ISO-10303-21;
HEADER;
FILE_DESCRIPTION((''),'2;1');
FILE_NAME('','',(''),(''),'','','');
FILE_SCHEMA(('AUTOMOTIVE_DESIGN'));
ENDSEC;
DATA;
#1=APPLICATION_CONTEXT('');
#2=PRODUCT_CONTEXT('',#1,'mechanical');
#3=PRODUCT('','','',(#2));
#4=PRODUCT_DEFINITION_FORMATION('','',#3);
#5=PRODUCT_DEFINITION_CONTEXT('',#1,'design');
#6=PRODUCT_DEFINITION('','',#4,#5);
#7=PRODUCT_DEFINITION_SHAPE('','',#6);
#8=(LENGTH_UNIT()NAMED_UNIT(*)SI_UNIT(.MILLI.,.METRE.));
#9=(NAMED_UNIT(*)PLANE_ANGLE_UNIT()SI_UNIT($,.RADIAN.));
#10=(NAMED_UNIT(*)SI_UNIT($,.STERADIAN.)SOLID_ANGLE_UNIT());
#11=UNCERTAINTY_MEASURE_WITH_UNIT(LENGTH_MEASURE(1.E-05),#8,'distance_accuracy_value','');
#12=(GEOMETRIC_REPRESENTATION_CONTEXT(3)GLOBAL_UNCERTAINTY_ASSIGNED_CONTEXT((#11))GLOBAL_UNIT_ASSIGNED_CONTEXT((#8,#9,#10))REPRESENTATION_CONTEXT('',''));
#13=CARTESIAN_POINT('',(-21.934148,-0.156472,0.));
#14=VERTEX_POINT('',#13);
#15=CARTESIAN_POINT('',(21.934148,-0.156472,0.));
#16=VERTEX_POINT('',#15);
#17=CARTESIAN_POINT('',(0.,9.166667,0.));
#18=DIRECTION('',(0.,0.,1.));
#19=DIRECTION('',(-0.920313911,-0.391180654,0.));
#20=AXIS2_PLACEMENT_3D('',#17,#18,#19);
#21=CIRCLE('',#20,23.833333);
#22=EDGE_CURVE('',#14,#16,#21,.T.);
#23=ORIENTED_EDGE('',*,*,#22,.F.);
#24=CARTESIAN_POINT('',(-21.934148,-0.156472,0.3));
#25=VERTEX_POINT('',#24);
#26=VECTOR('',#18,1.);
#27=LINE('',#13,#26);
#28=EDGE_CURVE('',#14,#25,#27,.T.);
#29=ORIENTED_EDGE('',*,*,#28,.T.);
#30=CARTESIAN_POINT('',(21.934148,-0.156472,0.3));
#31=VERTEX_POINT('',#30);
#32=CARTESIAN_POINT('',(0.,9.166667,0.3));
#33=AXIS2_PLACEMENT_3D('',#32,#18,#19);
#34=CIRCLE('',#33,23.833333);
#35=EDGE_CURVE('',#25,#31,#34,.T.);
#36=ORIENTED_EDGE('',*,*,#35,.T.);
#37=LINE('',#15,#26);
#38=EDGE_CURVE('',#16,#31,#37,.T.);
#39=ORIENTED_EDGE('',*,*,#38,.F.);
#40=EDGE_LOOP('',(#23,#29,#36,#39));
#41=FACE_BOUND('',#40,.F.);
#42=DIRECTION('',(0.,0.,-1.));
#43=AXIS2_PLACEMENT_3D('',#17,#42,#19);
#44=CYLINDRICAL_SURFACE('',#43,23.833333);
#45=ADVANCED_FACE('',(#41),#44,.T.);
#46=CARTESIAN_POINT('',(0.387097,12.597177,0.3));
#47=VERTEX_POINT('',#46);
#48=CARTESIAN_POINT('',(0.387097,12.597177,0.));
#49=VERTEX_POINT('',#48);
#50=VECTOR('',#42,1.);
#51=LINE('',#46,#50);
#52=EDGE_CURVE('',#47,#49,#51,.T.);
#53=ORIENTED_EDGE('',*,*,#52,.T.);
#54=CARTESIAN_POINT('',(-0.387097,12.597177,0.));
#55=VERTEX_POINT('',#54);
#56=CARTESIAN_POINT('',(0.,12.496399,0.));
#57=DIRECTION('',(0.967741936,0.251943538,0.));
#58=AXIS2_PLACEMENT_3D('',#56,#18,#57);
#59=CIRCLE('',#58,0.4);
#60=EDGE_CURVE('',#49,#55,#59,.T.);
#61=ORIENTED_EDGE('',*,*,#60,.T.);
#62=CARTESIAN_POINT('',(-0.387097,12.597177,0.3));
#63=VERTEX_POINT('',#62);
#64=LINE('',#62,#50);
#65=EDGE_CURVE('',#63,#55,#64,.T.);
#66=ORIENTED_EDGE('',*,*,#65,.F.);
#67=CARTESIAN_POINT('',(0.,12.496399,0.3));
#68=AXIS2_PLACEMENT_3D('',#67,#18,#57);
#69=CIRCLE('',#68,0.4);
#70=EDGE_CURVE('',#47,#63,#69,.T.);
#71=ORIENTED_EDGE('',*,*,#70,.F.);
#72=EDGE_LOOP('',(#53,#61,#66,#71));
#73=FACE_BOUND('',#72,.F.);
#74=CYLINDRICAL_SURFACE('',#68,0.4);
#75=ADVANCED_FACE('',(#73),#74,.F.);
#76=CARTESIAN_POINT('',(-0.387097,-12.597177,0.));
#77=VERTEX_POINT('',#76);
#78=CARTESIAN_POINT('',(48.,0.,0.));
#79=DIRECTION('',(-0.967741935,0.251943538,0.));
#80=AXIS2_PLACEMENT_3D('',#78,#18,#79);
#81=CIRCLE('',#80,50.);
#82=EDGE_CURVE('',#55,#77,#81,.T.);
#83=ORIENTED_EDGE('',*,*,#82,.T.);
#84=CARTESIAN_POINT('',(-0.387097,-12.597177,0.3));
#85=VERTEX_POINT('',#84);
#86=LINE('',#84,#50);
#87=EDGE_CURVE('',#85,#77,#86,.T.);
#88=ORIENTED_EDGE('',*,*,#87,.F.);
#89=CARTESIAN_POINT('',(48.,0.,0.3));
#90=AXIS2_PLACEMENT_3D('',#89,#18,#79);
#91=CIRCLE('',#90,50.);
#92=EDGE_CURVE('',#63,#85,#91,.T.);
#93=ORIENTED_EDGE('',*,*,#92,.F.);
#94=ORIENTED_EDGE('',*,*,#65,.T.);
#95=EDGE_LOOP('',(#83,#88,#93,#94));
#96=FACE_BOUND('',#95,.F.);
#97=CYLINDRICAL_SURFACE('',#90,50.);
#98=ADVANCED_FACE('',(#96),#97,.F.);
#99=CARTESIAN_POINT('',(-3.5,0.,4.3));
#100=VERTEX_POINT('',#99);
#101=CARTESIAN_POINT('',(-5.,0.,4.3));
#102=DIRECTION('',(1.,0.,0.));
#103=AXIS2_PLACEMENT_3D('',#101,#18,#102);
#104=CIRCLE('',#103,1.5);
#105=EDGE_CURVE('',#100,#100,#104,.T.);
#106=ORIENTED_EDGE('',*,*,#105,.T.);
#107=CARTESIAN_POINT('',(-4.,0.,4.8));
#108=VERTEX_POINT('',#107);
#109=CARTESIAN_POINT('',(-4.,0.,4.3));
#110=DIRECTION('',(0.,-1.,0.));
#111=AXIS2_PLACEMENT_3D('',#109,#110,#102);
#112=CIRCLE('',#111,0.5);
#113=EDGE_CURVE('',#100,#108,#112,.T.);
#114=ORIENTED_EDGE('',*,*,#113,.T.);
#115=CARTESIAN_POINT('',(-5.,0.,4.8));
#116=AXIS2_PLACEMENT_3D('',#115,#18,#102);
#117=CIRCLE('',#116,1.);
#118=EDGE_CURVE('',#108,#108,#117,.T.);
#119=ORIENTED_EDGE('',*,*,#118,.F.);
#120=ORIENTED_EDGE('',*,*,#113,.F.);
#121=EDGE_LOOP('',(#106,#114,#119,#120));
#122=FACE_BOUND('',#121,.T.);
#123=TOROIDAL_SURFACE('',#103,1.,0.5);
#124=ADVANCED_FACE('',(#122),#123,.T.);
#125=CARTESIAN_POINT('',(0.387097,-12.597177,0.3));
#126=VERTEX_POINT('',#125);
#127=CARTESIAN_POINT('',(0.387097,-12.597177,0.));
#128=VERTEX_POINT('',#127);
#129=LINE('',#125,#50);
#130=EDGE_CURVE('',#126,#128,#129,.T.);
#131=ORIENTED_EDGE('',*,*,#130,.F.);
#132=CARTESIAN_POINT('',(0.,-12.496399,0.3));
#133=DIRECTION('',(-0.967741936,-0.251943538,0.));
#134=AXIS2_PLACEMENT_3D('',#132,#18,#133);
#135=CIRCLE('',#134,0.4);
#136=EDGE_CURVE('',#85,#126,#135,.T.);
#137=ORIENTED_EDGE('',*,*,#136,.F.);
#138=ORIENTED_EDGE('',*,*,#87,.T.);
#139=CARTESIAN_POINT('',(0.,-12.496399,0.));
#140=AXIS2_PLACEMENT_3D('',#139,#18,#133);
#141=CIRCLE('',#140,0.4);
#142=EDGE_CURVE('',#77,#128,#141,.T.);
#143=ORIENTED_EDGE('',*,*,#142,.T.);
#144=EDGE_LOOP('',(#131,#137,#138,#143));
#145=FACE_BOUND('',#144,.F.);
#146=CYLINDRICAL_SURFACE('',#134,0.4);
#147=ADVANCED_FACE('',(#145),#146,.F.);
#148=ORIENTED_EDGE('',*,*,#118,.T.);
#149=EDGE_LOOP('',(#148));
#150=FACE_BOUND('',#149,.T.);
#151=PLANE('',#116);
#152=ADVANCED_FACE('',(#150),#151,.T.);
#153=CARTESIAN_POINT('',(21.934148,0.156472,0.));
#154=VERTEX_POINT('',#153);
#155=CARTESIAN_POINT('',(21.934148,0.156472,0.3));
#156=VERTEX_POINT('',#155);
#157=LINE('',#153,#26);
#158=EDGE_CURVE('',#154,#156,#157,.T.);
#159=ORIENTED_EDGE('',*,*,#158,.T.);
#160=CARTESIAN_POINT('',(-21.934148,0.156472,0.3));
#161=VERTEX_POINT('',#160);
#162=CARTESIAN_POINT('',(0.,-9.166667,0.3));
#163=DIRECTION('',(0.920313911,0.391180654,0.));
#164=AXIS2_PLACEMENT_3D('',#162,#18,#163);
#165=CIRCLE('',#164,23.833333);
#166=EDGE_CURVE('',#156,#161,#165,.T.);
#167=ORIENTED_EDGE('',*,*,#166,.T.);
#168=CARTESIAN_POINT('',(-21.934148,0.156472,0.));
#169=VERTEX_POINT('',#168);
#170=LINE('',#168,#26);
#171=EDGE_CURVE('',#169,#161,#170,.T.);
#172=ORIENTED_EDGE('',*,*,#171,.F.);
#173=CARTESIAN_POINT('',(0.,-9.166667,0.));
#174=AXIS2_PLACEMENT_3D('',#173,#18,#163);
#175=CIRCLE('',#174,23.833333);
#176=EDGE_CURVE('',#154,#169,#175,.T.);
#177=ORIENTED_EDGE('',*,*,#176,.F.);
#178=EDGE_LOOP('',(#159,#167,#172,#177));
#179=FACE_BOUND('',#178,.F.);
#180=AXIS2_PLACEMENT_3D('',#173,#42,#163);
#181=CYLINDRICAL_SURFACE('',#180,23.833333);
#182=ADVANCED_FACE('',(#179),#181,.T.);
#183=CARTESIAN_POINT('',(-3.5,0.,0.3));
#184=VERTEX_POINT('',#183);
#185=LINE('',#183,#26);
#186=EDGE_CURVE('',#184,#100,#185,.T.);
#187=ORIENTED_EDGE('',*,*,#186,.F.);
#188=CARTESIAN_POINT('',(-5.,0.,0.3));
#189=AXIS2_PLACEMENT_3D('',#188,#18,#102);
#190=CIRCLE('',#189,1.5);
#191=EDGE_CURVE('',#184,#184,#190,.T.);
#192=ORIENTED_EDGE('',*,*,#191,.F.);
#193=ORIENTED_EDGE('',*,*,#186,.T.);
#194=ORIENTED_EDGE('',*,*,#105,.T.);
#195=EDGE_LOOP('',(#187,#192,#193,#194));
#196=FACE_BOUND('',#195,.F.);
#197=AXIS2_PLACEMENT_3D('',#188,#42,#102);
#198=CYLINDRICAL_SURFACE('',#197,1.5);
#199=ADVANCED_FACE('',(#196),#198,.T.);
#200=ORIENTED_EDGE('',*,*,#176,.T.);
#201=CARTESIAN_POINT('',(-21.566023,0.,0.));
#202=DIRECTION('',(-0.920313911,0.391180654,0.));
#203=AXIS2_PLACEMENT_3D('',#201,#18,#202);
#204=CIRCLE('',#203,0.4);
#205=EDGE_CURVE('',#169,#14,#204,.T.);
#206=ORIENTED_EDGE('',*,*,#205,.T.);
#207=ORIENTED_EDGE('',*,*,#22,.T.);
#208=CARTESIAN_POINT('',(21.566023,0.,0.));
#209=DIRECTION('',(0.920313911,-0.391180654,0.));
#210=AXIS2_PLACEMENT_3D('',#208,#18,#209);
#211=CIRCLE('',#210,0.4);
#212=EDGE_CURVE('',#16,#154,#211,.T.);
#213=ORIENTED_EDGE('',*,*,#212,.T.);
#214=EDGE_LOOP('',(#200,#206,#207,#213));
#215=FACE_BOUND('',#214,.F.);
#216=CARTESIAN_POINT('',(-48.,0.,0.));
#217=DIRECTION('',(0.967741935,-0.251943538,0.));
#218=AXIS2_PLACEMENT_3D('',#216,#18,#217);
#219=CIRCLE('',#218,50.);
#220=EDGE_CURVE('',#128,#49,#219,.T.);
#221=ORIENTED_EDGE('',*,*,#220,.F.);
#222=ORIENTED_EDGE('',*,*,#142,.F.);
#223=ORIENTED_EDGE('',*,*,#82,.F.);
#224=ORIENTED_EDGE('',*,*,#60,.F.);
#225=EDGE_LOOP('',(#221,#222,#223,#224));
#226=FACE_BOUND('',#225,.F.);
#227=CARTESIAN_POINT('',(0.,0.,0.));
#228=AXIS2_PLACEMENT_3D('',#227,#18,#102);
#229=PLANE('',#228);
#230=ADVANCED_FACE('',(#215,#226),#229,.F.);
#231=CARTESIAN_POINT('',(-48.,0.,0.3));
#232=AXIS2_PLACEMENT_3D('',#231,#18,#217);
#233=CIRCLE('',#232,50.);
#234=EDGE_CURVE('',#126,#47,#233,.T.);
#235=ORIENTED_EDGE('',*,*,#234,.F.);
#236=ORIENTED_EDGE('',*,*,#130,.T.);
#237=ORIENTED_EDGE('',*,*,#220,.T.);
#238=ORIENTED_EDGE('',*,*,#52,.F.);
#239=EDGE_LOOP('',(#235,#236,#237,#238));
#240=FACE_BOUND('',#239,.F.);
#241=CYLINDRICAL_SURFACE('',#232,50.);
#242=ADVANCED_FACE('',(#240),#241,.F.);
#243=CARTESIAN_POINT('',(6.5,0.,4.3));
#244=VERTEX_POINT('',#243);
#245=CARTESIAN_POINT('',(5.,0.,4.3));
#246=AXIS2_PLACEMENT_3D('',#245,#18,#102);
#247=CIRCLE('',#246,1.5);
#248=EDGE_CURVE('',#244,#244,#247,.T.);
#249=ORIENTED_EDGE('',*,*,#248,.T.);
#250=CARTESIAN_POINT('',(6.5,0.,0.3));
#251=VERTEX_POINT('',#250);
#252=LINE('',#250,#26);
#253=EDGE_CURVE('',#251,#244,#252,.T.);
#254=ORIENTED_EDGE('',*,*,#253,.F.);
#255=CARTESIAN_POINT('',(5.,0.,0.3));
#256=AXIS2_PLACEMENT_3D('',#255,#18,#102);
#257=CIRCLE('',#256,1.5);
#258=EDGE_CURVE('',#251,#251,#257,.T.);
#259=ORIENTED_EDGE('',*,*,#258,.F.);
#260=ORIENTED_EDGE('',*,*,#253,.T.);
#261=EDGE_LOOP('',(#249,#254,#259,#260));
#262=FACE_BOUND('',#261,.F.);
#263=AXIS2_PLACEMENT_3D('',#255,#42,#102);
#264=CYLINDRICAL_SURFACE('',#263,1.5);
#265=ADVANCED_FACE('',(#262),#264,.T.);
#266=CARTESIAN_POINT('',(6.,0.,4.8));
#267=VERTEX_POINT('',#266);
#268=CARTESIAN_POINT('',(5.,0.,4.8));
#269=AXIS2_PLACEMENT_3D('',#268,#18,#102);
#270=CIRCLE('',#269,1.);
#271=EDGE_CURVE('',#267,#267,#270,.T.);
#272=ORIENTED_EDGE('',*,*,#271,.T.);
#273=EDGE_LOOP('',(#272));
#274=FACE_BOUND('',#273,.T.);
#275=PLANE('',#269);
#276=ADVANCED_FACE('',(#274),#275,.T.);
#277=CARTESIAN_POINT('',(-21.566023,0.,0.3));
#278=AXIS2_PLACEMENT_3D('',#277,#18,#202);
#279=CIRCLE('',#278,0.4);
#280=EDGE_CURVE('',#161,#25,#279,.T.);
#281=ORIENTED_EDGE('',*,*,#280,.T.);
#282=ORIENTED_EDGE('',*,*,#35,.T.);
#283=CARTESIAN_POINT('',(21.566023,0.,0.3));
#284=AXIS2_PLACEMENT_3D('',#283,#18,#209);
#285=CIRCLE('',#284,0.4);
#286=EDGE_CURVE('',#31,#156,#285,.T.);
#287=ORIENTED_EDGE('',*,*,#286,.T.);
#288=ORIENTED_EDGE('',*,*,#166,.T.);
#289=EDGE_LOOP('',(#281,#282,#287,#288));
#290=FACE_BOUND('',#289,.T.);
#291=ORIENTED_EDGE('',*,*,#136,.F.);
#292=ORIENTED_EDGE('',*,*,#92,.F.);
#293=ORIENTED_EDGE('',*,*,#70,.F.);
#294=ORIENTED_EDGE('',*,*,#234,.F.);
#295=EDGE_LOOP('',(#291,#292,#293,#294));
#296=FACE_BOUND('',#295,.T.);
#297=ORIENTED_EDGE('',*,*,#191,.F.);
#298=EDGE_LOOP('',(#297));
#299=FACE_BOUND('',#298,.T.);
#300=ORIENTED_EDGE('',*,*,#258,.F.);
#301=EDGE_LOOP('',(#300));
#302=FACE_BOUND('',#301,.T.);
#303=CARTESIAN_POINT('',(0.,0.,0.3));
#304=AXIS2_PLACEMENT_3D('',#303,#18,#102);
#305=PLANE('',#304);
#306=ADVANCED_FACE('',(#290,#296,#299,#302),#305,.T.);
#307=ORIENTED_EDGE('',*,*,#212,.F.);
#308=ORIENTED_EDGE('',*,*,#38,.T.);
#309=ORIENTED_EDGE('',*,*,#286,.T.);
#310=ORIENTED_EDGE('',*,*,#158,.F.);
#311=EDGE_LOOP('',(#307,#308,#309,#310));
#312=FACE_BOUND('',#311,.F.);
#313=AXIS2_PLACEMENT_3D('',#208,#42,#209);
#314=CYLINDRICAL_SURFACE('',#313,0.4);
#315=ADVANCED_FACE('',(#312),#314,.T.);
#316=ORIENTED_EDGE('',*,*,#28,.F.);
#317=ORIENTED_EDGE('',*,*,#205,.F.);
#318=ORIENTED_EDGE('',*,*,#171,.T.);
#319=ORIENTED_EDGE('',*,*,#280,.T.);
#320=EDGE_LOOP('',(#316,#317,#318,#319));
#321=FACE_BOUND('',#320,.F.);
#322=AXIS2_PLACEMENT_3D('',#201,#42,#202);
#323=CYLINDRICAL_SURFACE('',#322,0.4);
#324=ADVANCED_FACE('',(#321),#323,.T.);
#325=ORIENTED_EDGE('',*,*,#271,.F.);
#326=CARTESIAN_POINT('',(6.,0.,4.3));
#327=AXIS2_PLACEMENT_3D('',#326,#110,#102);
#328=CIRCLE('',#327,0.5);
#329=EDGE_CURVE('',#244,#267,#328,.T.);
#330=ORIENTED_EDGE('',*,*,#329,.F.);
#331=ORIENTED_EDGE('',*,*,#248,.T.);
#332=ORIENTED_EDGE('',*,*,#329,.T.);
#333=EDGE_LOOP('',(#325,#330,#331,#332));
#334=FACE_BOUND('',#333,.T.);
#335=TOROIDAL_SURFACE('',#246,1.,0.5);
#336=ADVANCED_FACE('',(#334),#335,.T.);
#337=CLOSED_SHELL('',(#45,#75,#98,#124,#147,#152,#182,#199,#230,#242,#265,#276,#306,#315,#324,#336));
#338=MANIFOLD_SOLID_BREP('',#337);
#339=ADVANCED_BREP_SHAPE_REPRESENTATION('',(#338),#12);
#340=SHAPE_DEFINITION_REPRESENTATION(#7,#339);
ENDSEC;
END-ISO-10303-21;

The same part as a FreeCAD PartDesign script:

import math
import FreeCAD as App
import Part
import Sketcher
from FreeCAD import Vector


def edges_at(feature, points):
    """Names of the edges that pass closest to the given points."""
    edges = feature.Shape.Edges
    near = lambda p: min(range(len(edges)), key=lambda i: edges[i].distToShape(Part.Vertex(*p))[0])
    return sorted({f"Edge{near(p) + 1}" for p in points})

doc = App.newDocument("Part")
body = doc.addObject("PartDesign::Body", "Body")

# Sketch on XY plane
sketch1 = body.newObject("Sketcher::SketchObject", "Sketch")
sketch1.AttachmentSupport = (doc.getObject("XY_Plane"), [""])
sketch1.MapMode = "FlatFace"
sketch1.addGeometry([
    Part.ArcOfCircle(Part.Circle(Vector(21.57, 0, 0), Vector(0, 0, 1), 0.4), math.radians(-23), math.radians(23)),
    Part.ArcOfCircle(Part.Circle(Vector(0, -9.17, 0), Vector(0, 0, 1), 23.83), math.radians(23), math.radians(157)),
    Part.ArcOfCircle(Part.Circle(Vector(-21.57, 0, 0), Vector(0, 0, 1), 0.4), math.radians(157), math.radians(203)),
    Part.ArcOfCircle(Part.Circle(Vector(0, 9.17, 0), Vector(0, 0, 1), 23.83), math.radians(-157), math.radians(-23)),
], False)
sketch1.addConstraint([
    Sketcher.Constraint("Tangent", 0, 2, 1, 1),
    Sketcher.Constraint("Tangent", 1, 2, 2, 1),
    Sketcher.Constraint("Tangent", 2, 2, 3, 1),
    Sketcher.Constraint("Tangent", 3, 2, 0, 1),
    Sketcher.Constraint("Equal", 0, 2),
    Sketcher.Constraint("Equal", 1, 3),
    Sketcher.Constraint("Symmetric", 0, 3, 2, 3, -1, 1),
    Sketcher.Constraint("PointOnObject", 0, 3, -1),
    Sketcher.Constraint("Radius", 0, 0.4),
    Sketcher.Constraint("Radius", 1, 23.833333),
    Sketcher.Constraint("DistanceX", -1, 1, 0, 2, 21.934148),
])
pad1 = body.newObject("PartDesign::Pad", "Pad")
pad1.Profile = sketch1
pad1.Length = 0.3

# Sketch on XY plane
sketch2 = body.newObject("Sketcher::SketchObject", "Sketch001")
sketch2.AttachmentSupport = (doc.getObject("XY_Plane"), [""])
sketch2.MapMode = "FlatFace"
sketch2.AttachmentOffset = App.Placement(Vector(0, 0, 0.3), App.Rotation())
sketch2.addGeometry([
    Part.Circle(Vector(-5, 0, 0), Vector(0, 0, 1), 1.5),
    Part.Circle(Vector(5, 0, 0), Vector(0, 0, 1), 1.5),
], False)
sketch2.addConstraint([
    Sketcher.Constraint("Equal", 0, 1),
    Sketcher.Constraint("Symmetric", 0, 3, 1, 3, -1, 1),
    Sketcher.Constraint("PointOnObject", 0, 3, -1),
    Sketcher.Constraint("Diameter", 0, 3.0),
    Sketcher.Constraint("DistanceX", 0, 3, -1, 1, 5.0),
])
pad2 = body.newObject("PartDesign::Pad", "Pad001")
pad2.Profile = sketch2
pad2.Length = 4.5
doc.recompute()

fillet = body.newObject("PartDesign::Fillet", "Fillet")
fillet.Base = (pad2, edges_at(pad2, [(-6.5, 0, 4.8), (3.5, 0, 4.8)]))
fillet.Radius = 0.5

# Sketch on XY plane
sketch3 = body.newObject("Sketcher::SketchObject", "Sketch002")
sketch3.AttachmentSupport = (doc.getObject("XY_Plane"), [""])
sketch3.MapMode = "FlatFace"
sketch3.AttachmentOffset = App.Placement(Vector(0, 0, 0.3), App.Rotation())
sketch3.addGeometry([
    Part.ArcOfCircle(Part.Circle(Vector(0, -12.5, 0), Vector(0, 0, 1), 0.4), math.radians(-165), math.radians(-15)),
    Part.ArcOfCircle(Part.Circle(Vector(-48, 0, 0), Vector(0, 0, 1), 50), math.radians(-15), math.radians(15)),
    Part.ArcOfCircle(Part.Circle(Vector(0, 12.5, 0), Vector(0, 0, 1), 0.4), math.radians(15), math.radians(165)),
    Part.ArcOfCircle(Part.Circle(Vector(48, 0, 0), Vector(0, 0, 1), 50), math.radians(165), math.radians(195)),
], False)
sketch3.addConstraint([
    Sketcher.Constraint("Tangent", 0, 2, 1, 1),
    Sketcher.Constraint("Tangent", 1, 2, 2, 1),
    Sketcher.Constraint("Tangent", 2, 2, 3, 1),
    Sketcher.Constraint("Tangent", 3, 2, 0, 1),
    Sketcher.Constraint("Equal", 0, 2),
    Sketcher.Constraint("Equal", 1, 3),
    Sketcher.Constraint("Symmetric", 0, 3, 2, 3, -1, 1),
    Sketcher.Constraint("PointOnObject", 0, 3, -2),
    Sketcher.Constraint("Radius", 1, 50.0),
    Sketcher.Constraint("Radius", 0, 0.4),
    Sketcher.Constraint("DistanceX", 1, 3, -1, 1, 48.0),
])
pocket1 = body.newObject("PartDesign::Pocket", "Pocket")
pocket1.Profile = sketch3
pocket1.Type = "ThroughAll"

doc.recompute()
